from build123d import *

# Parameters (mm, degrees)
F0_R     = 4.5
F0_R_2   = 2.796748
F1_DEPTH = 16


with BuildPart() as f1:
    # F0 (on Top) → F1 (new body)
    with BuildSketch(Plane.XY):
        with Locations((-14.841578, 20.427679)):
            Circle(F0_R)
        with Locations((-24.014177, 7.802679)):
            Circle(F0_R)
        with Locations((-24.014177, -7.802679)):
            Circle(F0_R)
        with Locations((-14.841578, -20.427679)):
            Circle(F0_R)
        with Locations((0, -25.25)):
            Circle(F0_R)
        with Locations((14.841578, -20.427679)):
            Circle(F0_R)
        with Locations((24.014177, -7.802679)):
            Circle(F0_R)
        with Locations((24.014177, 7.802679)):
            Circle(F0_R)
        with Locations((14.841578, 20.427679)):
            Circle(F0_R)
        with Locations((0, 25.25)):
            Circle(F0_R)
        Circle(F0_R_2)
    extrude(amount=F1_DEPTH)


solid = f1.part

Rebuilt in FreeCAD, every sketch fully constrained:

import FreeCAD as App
import Part
import Sketcher

V = App.Vector
Q = App.Units.Quantity

doc = App.newDocument("Part")
body = doc.addObject("PartDesign::Body", "Body")
body.AllowCompound = True

# Sketch on XY plane
sketch1 = doc.addObject("Sketcher::SketchObject", "Sketch")
body.addObject(sketch1)
sketch1.AttachmentSupport = (doc.XY_Plane, [""])
sketch1.MapMode = "FlatFace"
sketch1.addGeometry([
    Part.Circle(V(-14.8, 20.4, 0), V(0, 0, 1), 4.5),  # 0
    Part.Circle(V(-24, 7.8, 0), V(0, 0, 1), 4.5),  # 1
    Part.Circle(V(-24, -7.8, 0), V(0, 0, 1), 4.5),  # 2
    Part.Circle(V(-14.8, -20.4, 0), V(0, 0, 1), 4.5),  # 3
    Part.Circle(V(0, -25.2, 0), V(0, 0, 1), 4.5),  # 4
    Part.Circle(V(14.8, -20.4, 0), V(0, 0, 1), 4.5),  # 5
    Part.Circle(V(24, -7.8, 0), V(0, 0, 1), 4.5),  # 6
    Part.Circle(V(24, 7.8, 0), V(0, 0, 1), 4.5),  # 7
    Part.Circle(V(14.8, 20.4, 0), V(0, 0, 1), 4.5),  # 8
    Part.Circle(V(0, 25.2, 0), V(0, 0, 1), 4.5),  # 9
    Part.Circle(V(0, 0, 0), V(0, 0, 1), 2.8),  # 10
], False)
sketch1.addConstraint([
    Sketcher.Constraint("Coincident", 10, 3, -1, 1),
    Sketcher.Constraint("Equal", 0, 1),
    Sketcher.Constraint("Equal", 1, 2),
    Sketcher.Constraint("Equal", 2, 3),
    Sketcher.Constraint("Equal", 3, 4),
    Sketcher.Constraint("Equal", 4, 5),
    Sketcher.Constraint("Equal", 5, 6),
    Sketcher.Constraint("Equal", 6, 7),
    Sketcher.Constraint("Equal", 7, 8),
    Sketcher.Constraint("Equal", 8, 9),
    Sketcher.Constraint("Symmetric", 0, 3, 5, 3, -1, 1),
    Sketcher.Constraint("Symmetric", 1, 3, 6, 3, -1, 1),
    Sketcher.Constraint("Symmetric", 2, 3, 7, 3, -1, 1),
    Sketcher.Constraint("Symmetric", 3, 3, 8, 3, -1, 1),
    Sketcher.Constraint("Symmetric", 4, 3, 9, 3, -1, 1),
    Sketcher.Constraint("Symmetric", 3, 3, 5, 3, -2),
    Sketcher.Constraint("Symmetric", 2, 3, 6, 3, -2),
    Sketcher.Constraint("PointOnObject", 4, 3, -2),
    Sketcher.Constraint("Diameter", 0, Q("9 mm")),
    Sketcher.Constraint("DistanceY", 4, 3, -1, 1, Q("25.25 mm")),
    Sketcher.Constraint("Diameter", 10, Q("5.593496 mm")),
    Sketcher.Constraint("DistanceY", 1, 3, 0, 3, Q("12.625 mm")),
    Sketcher.Constraint("DistanceX", 1, 3, 0, 3, Q("9.172599 mm")),
    Sketcher.Constraint("DistanceY", -1, 1, 0, 3, Q("20.427679 mm")),
    Sketcher.Constraint("DistanceX", 0, 3, -1, 1, Q("14.841578 mm")),
])
pad1 = doc.addObject("PartDesign::Pad", "Pad")
body.addObject(pad1)
pad1.Profile = sketch1
pad1.Length = 16

doc.recompute()
